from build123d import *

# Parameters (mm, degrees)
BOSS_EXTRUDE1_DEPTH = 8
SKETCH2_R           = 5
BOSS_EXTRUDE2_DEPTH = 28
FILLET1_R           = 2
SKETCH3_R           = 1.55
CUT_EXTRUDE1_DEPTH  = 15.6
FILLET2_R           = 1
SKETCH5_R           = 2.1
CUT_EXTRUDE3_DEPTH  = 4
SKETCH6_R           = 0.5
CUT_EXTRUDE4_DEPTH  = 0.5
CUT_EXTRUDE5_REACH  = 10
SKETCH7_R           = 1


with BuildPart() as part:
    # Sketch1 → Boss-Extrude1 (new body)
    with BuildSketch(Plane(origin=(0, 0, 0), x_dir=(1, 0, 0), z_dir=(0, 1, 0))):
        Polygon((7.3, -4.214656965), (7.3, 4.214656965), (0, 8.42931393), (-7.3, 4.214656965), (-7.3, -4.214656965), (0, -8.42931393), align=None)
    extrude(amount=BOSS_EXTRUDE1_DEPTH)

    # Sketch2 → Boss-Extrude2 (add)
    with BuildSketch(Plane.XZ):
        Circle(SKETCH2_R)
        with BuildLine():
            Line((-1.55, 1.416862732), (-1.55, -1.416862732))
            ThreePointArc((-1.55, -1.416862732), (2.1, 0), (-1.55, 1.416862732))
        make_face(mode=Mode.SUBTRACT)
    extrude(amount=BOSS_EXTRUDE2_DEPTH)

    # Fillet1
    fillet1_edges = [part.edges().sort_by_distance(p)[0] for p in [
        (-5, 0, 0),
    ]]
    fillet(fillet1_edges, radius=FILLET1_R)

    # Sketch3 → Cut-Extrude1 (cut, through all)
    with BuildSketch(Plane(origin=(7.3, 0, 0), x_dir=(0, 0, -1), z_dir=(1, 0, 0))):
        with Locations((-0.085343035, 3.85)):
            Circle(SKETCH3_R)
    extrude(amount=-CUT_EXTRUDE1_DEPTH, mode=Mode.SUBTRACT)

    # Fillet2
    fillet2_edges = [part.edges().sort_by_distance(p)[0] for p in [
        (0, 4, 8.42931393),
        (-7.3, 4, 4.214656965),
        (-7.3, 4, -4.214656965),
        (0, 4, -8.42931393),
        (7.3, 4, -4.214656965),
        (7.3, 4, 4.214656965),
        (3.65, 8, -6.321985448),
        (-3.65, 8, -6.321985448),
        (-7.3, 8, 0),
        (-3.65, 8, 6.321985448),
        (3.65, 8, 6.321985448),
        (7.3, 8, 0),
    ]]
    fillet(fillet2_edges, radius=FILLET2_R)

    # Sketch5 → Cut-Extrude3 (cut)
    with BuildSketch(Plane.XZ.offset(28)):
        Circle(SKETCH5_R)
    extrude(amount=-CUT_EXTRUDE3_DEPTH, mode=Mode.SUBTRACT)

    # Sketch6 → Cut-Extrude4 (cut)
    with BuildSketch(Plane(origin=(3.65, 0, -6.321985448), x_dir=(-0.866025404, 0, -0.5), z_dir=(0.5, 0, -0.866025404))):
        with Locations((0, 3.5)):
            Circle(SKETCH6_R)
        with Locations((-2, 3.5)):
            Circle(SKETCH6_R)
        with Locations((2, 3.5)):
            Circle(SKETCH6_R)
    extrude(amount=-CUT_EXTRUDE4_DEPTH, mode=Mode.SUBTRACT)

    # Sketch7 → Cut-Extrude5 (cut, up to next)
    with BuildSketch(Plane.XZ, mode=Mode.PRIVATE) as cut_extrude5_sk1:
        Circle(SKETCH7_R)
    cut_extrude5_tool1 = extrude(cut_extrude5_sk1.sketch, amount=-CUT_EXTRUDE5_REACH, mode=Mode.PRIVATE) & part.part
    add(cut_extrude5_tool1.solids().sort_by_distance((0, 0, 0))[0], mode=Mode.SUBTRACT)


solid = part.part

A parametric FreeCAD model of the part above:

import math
import FreeCAD as App
import Part
import Sketcher
from FreeCAD import Vector
Q = App.Units.Quantity


def edges_at(feature, points):
    """Names of the edges that pass closest to the given points."""
    edges = feature.Shape.Edges
    near = lambda p: min(range(len(edges)), key=lambda i: edges[i].distToShape(Part.Vertex(*p))[0])
    return sorted({f"Edge{near(p) + 1}" for p in points})


def add_polygon(sketch, points):
    """Adds a closed chain of lines whose ends are joined by coincident constraints."""
    first, n = sketch.GeometryCount, len(points)
    for a, b in zip(points, points[1:] + points[:1]):
        sketch.addGeometry(Part.LineSegment(App.Vector(*a, 0), App.Vector(*b, 0)), False)
    for i in range(n):
        sketch.addConstraint(Sketcher.Constraint("Coincident", first + i, 2, first + (i + 1) % n, 1))

doc = App.newDocument("Part")
body = doc.addObject("PartDesign::Body", "Body")

# Sketch on XZ plane
sketch1 = body.newObject("Sketcher::SketchObject", "Sketch")
sketch1.AttachmentSupport = (doc.getObject("XZ_Plane"), [""])
sketch1.MapMode = "FlatFace"
add_polygon(sketch1, [(7, 4), (7, -4), (0, -8), (-7, -4), (-7, 4), (0, 8)])  # lines 0-5
sketch1.addConstraint([
    Sketcher.Constraint("Vertical", 0),
    Sketcher.Constraint("Vertical", 3),
    Sketcher.Constraint("Symmetric", 0, 2, 3, 2, -1, 1),
    Sketcher.Constraint("Symmetric", 1, 2, 4, 2, -1, 1),
    Sketcher.Constraint("PointOnObject", 1, 2, -2),
    Sketcher.Constraint("Parallel", 2, 5),
    Sketcher.Constraint("Horizontal", 0, 2, 2, 2),
    Sketcher.Constraint("Angle", 1, Q("-150 deg")),
    Sketcher.Constraint("DistanceX", -1, 1, 0, 2, 7.3),
    Sketcher.Constraint("DistanceY", 0, 2, 0, 1, 8.429314),
])
pad1 = body.newObject("PartDesign::Pad", "Pad")
pad1.Profile = sketch1
pad1.Length = 8
pad1.Reversed = True

# Sketch on XZ plane
sketch2 = body.newObject("Sketcher::SketchObject", "Sketch001")
sketch2.AttachmentSupport = (doc.getObject("XZ_Plane"), [""])
sketch2.MapMode = "FlatFace"
sketch2.addGeometry([
    Part.Circle(Vector(0, 0, 0), Vector(0, 0, 1), 5),
    Part.LineSegment(Vector(-1.6, -1.4, 0), Vector(-1.6, 1.4, 0)),
    Part.ArcOfCircle(Part.Circle(Vector(0, 0, 0), Vector(0, 0, 1), 2.1), math.radians(-138), math.radians(138)),
], False)
sketch2.addConstraint([
    Sketcher.Constraint("Coincident", 1, 1, 2, 1),
    Sketcher.Constraint("Coincident", 2, 2, 1, 2),
    Sketcher.Constraint("Vertical", 1),
    Sketcher.Constraint("Coincident", 0, 3, -1, 1),
    Sketcher.Constraint("Coincident", 2, 3, -1, 1),
    Sketcher.Constraint("Diameter", 0, 10.0),
    Sketcher.Constraint("Radius", 2, 2.1),
    Sketcher.Constraint("DistanceX", 1, 1, -1, 1, 1.55),
])
pad2 = body.newObject("PartDesign::Pad", "Pad001")
pad2.Profile = sketch2
pad2.Length = 28
doc.recompute()

fillet = body.newObject("PartDesign::Fillet", "Fillet")
fillet.Base = (pad2, edges_at(pad2, [(-5, 0, 0)]))
fillet.Radius = 2

# Sketch on YZ plane
sketch3 = body.newObject("Sketcher::SketchObject", "Sketch002")
sketch3.AttachmentSupport = (doc.getObject("YZ_Plane"), [""])
sketch3.MapMode = "FlatFace"
sketch3.AttachmentOffset = App.Placement(Vector(0, 0, 7.3), App.Rotation())
sketch3.addGeometry(Part.Circle(Vector(3.9, 0.1, 0), Vector(0, 0, 1), 1.6), False)
sketch3.addConstraint([
    Sketcher.Constraint("Diameter", 0, 3.1),
    Sketcher.Constraint("DistanceX", -1, 1, 0, 3, 3.85),
    Sketcher.Constraint("DistanceY", -1, 1, 0, 3, 0.085343),
])
pocket1 = body.newObject("PartDesign::Pocket", "Pocket")
pocket1.Profile = sketch3
pocket1.Type = "ThroughAll"
doc.recompute()

fillet2 = body.newObject("PartDesign::Fillet", "Fillet001")
fillet2.Base = (pocket1, edges_at(pocket1, [
    (0, 4, 8.429),
    (-7.3, 4, 4.215),
    (-7.3, 4, -4.215),
    (0, 4, -8.429),
    (7.3, 4, -4.215),
    (7.3, 4, 4.215),
    (3.65, 8, -6.322),
    (-3.65, 8, -6.322),
    (-7.3, 8, 0),
    (-3.65, 8, 6.322),
    (3.65, 8, 6.322),
    (7.3, 8, 0),
]))
fillet2.Radius = 1

# Sketch on XZ plane
sketch4 = body.newObject("Sketcher::SketchObject", "Sketch003")
sketch4.AttachmentSupport = (doc.getObject("XZ_Plane"), [""])
sketch4.MapMode = "FlatFace"
sketch4.AttachmentOffset = App.Placement(Vector(0, 0, 28), App.Rotation())
sketch4.addGeometry(Part.Circle(Vector(0, 0, 0), Vector(0, 0, 1), 2.1), False)
sketch4.addConstraint([
    Sketcher.Constraint("Coincident", 0, 3, -1, 1),
    Sketcher.Constraint("Diameter", 0, 4.2),
])
pocket2 = body.newObject("PartDesign::Pocket", "Pocket001")
pocket2.Profile = sketch4
pocket2.Length = 4

# Sketch on an angled plane
sketch5 = body.newObject("Sketcher::SketchObject", "Sketch004")
sketch5.Placement = App.Placement(Vector(3.65, 0, -6.321985), App.Rotation(Vector(-0.866025404, 0, -0.5), Vector(0, 1, 0), Vector(0.5, 0, -0.866025404), "ZXY"))
sketch5.addGeometry([
    Part.Circle(Vector(0, 3.5, 0), Vector(0, 0, 1), 0.5),
    Part.Circle(Vector(-2, 3.5, 0), Vector(0, 0, 1), 0.5),
    Part.Circle(Vector(2, 3.5, 0), Vector(0, 0, 1), 0.5),
], False)
sketch5.addConstraint([
    Sketcher.Constraint("Equal", 0, 1),
    Sketcher.Constraint("Equal", 1, 2),
    Sketcher.Constraint("Symmetric", 1, 3, 2, 3, -2),
    Sketcher.Constraint("PointOnObject", 0, 3, -2),
    Sketcher.Constraint("Horizontal", 0, 3, 1, 3),
    Sketcher.Constraint("Diameter", 0, 1.0),
    Sketcher.Constraint("DistanceX", 1, 3, -1, 1, 2.0),
    Sketcher.Constraint("DistanceY", -1, 1, 0, 3, 3.5),
])
pocket3 = body.newObject("PartDesign::Pocket", "Pocket002")
pocket3.Profile = sketch5
pocket3.Length = 0.5

# Sketch on XZ plane
sketch6 = body.newObject("Sketcher::SketchObject", "Sketch005")
sketch6.AttachmentSupport = (doc.getObject("XZ_Plane"), [""])
sketch6.MapMode = "FlatFace"
sketch6.addGeometry(Part.Circle(Vector(0, 0, 0), Vector(0, 0, 1), 1), False)
sketch6.addConstraint([
    Sketcher.Constraint("Coincident", 0, 3, -1, 1),
    Sketcher.Constraint("Diameter", 0, 2.0),
])
pocket4 = body.newObject("PartDesign::Pocket", "Pocket003")
pocket4.Profile = sketch6
pocket4.Type = "UpToFirst"

doc.recompute()
